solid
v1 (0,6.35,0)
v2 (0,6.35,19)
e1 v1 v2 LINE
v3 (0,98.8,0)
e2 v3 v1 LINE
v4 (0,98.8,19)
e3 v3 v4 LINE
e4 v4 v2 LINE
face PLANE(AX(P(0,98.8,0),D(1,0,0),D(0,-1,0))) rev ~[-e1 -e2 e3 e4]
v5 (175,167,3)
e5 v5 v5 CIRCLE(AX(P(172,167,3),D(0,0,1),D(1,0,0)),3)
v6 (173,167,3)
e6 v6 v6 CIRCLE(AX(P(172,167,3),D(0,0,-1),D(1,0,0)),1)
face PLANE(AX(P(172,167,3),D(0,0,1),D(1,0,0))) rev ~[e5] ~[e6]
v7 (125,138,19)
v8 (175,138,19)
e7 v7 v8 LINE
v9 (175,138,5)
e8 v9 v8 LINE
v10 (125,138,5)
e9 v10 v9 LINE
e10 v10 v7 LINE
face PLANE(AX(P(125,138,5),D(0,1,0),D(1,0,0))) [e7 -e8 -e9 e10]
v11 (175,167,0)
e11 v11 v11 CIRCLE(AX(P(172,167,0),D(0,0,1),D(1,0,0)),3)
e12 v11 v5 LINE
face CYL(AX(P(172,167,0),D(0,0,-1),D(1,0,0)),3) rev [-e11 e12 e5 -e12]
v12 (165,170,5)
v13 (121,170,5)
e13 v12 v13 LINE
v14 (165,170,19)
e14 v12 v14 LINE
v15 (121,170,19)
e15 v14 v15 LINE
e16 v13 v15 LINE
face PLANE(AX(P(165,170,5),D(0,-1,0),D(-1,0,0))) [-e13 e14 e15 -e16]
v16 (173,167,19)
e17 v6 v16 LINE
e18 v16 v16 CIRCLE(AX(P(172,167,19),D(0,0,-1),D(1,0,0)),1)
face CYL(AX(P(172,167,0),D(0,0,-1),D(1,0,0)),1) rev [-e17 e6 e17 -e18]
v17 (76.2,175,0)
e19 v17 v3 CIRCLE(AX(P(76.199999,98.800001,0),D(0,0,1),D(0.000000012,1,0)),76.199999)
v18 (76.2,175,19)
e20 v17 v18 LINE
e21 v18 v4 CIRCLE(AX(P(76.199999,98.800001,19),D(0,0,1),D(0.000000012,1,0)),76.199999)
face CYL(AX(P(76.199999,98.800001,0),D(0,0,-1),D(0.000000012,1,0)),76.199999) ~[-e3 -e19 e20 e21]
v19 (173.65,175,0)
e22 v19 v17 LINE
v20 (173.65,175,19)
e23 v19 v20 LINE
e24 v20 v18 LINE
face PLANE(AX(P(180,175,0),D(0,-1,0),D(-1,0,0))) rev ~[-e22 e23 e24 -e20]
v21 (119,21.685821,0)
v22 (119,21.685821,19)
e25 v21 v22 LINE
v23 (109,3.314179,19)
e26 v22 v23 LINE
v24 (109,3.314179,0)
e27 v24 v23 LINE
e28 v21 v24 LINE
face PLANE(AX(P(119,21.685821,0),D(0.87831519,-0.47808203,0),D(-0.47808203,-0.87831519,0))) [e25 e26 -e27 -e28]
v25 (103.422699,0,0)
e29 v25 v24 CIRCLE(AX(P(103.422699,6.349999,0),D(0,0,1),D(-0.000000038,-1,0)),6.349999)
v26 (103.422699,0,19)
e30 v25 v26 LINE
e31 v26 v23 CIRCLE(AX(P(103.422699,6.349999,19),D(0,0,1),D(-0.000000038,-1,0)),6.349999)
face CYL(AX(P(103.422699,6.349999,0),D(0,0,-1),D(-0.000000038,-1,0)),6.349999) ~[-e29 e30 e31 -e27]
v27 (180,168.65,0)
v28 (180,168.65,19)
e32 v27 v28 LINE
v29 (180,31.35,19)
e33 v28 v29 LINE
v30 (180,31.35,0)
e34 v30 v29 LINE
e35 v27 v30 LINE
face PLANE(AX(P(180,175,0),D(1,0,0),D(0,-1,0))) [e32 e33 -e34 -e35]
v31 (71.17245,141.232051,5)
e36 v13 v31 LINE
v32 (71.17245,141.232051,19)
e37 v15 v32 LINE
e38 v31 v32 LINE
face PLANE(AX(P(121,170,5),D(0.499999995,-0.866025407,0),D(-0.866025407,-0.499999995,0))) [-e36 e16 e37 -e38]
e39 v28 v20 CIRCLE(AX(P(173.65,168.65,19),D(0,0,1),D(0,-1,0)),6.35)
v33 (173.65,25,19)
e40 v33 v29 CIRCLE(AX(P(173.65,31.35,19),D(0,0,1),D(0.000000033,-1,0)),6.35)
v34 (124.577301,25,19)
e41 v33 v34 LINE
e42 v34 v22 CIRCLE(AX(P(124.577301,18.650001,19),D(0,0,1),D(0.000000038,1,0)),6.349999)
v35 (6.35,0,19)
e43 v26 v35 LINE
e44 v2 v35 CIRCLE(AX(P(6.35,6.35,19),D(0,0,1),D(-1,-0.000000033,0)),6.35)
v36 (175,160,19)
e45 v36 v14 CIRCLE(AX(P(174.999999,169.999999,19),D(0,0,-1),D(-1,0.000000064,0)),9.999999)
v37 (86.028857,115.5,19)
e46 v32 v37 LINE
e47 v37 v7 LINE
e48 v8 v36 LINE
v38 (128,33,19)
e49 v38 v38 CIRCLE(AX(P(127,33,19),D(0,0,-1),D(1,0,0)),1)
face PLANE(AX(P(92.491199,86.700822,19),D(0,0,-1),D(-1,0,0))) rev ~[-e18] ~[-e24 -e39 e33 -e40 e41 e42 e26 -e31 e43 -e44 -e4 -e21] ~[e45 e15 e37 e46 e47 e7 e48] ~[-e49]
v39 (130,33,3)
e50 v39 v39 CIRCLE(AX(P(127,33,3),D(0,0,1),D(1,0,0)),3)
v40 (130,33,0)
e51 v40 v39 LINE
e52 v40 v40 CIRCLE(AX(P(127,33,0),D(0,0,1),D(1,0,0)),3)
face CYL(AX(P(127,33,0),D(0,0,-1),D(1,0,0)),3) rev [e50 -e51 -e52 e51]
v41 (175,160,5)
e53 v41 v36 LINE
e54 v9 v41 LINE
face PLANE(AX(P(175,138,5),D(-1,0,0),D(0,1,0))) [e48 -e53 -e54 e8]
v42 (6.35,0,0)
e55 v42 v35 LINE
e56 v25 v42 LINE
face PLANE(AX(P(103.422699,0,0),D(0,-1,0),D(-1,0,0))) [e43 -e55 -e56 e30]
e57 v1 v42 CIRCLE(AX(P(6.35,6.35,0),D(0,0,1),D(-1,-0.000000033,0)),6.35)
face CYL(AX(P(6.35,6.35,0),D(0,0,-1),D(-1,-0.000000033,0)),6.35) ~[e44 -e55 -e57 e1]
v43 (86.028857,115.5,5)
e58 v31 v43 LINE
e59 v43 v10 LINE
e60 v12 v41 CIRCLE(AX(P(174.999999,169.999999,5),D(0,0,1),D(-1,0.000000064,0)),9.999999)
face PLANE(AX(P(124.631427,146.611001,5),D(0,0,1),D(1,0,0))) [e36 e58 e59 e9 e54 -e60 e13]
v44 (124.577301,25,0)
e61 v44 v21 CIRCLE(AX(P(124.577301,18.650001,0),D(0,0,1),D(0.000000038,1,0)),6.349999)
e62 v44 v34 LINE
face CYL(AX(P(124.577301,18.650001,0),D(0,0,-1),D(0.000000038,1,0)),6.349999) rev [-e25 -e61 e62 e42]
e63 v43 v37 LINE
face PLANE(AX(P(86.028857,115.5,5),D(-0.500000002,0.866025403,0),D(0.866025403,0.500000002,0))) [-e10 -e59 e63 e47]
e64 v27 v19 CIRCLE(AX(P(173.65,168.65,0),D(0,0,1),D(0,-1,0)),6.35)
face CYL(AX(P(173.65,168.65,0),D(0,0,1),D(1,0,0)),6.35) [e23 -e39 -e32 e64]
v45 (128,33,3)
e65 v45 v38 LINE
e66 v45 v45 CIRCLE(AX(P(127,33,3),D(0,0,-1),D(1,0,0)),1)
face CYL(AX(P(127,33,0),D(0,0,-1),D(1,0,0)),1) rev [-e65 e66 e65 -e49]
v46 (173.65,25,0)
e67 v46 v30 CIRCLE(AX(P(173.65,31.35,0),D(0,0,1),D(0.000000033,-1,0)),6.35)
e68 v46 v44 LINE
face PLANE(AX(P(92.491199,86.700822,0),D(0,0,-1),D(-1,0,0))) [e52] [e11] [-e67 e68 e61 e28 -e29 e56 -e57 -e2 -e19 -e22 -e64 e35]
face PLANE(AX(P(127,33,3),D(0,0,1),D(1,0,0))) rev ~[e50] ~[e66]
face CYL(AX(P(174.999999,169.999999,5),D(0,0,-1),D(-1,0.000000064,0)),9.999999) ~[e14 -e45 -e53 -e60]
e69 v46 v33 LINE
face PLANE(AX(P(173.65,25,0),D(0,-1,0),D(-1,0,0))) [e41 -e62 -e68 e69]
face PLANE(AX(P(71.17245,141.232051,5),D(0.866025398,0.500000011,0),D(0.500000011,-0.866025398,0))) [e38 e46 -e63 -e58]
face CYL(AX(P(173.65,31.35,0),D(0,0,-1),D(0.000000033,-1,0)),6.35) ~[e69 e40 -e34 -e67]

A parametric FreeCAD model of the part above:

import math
import FreeCAD as App
import Part
import Sketcher
Q = App.Units.Quantity


def edges_at(feature, points):
    """Names of the edges that pass closest to the given points."""
    edges = feature.Shape.Edges
    near = lambda p: min(range(len(edges)), key=lambda i: edges[i].distToShape(Part.Vertex(*p))[0])
    return sorted({f"Edge{near(p) + 1}" for p in points})

doc = App.newDocument("Part")
body = doc.addObject("PartDesign::Body", "Body")

# Sketch on XY plane
sketch1 = body.newObject("Sketcher::SketchObject", "Sketch")
sketch1.AttachmentSupport = (doc.getObject("XY_Plane"), [""])
sketch1.MapMode = "FlatFace"
sketch1.addGeometry([
    Part.LineSegment(App.Vector(180, 31, 0), App.Vector(180, 175, 0)),  # 0
    Part.LineSegment(App.Vector(180, 175, 0), App.Vector(76, 175, 0)),  # 1
    Part.ArcOfCircle(Part.Circle(App.Vector(76, 99, 0), App.Vector(0, 0, 1), 76), math.radians(90), math.radians(180)),  # 2
    Part.LineSegment(App.Vector(0, 99, 0), App.Vector(0, 6, 0)),  # 3
    Part.ArcOfCircle(Part.Circle(App.Vector(6, 6, 0), App.Vector(0, 0, 1), 6), math.radians(-180), math.radians(-90)),  # 4
    Part.LineSegment(App.Vector(6, 0, 0), App.Vector(103, 0, 0)),  # 5
    Part.ArcOfCircle(Part.Circle(App.Vector(103, 6, 0), App.Vector(0, 0, 1), 6), math.radians(-90), math.radians(-29)),  # 6
    Part.LineSegment(App.Vector(109, 3, 0), App.Vector(119, 22, 0)),  # 7
    Part.ArcOfCircle(Part.Circle(App.Vector(125, 19, 0), App.Vector(0, 0, 1), 6), math.radians(90), math.radians(151)),  # 8
    Part.LineSegment(App.Vector(125, 25, 0), App.Vector(174, 25, 0)),  # 9
    Part.ArcOfCircle(Part.Circle(App.Vector(174, 31, 0), App.Vector(0, 0, 1), 6), math.radians(-90), math.radians(0)),  # 10
], False)
sketch1.addConstraint([
    Sketcher.Constraint("Coincident", 0, 2, 1, 1),
    Sketcher.Constraint("Tangent", 1, 2, 2, 1),
    Sketcher.Constraint("Tangent", 2, 2, 3, 1),
    Sketcher.Constraint("Tangent", 3, 2, 4, 1),
    Sketcher.Constraint("Tangent", 4, 2, 5, 1),
    Sketcher.Constraint("Tangent", 5, 2, 6, 1),
    Sketcher.Constraint("Tangent", 6, 2, 7, 1),
    Sketcher.Constraint("Tangent", 7, 2, 8, 2),
    Sketcher.Constraint("Tangent", 8, 1, 9, 1),
    Sketcher.Constraint("Tangent", 9, 2, 10, 1),
    Sketcher.Constraint("Tangent", 10, 2, 0, 1),
    Sketcher.Constraint("Vertical", 0),
    Sketcher.Constraint("Horizontal", 1),
    Sketcher.Constraint("Vertical", 3),
    Sketcher.Constraint("Horizontal", 5),
    Sketcher.Constraint("Horizontal", 9),
    Sketcher.Constraint("Equal", 4, 6),
    Sketcher.Constraint("Equal", 6, 8),
    Sketcher.Constraint("Equal", 8, 10),
    Sketcher.Constraint("PointOnObject", 2, 2, -2),
    Sketcher.Constraint("PointOnObject", 4, 2, -1),
    Sketcher.Constraint("Radius", 2, Q("76.199999 mm")),
    Sketcher.Constraint("Radius", 4, Q("6.35 mm")),
    Sketcher.Constraint("DistanceX", 1, 2, 1, 1, Q("103.8 mm")),
    Sketcher.Constraint("DistanceY", -1, 1, 0, 2, Q("175 mm")),
    Sketcher.Constraint("DistanceX", -1, 1, 6, 2, Q("109 mm")),
    Sketcher.Constraint("DistanceX", -1, 1, 7, 2, Q("119 mm")),
    Sketcher.Constraint("DistanceY", -1, 1, 8, 1, Q("25 mm")),
])
pad1 = body.newObject("PartDesign::Pad", "Pad")
pad1.Profile = sketch1
pad1.Length = 19
doc.recompute()

fillet = body.newObject("PartDesign::Fillet", "Fillet")
fillet.Base = (pad1, edges_at(pad1, [(180, 175, 9.5)]))
fillet.Radius = 6.35

# Sketch on XY plane
sketch2 = body.newObject("Sketcher::SketchObject", "Sketch001")
sketch2.AttachmentSupport = (doc.getObject("XY_Plane"), [""])
sketch2.MapMode = "FlatFace"
sketch2.AttachmentOffset = App.Placement(App.Vector(0, 0, 5), App.Rotation())
sketch2.addGeometry([
    Part.LineSegment(App.Vector(165, 170, 0), App.Vector(121, 170, 0)),  # 0
    Part.LineSegment(App.Vector(121, 170, 0), App.Vector(71, 141, 0)),  # 1
    Part.LineSegment(App.Vector(71, 141, 0), App.Vector(86, 116, 0)),  # 2
    Part.LineSegment(App.Vector(86, 116, 0), App.Vector(125, 138, 0)),  # 3
    Part.LineSegment(App.Vector(125, 138, 0), App.Vector(175, 138, 0)),  # 4
    Part.LineSegment(App.Vector(175, 138, 0), App.Vector(175, 160, 0)),  # 5
    Part.ArcOfCircle(Part.Circle(App.Vector(175, 170, 0), App.Vector(0, 0, 1), 10), math.radians(180), math.radians(270)),  # 6
], False)
sketch2.addConstraint([
    Sketcher.Constraint("Coincident", 0, 2, 1, 1),
    Sketcher.Constraint("Coincident", 1, 2, 2, 1),
    Sketcher.Constraint("Coincident", 2, 2, 3, 1),
    Sketcher.Constraint("Coincident", 3, 2, 4, 1),
    Sketcher.Constraint("Coincident", 4, 2, 5, 1),
    Sketcher.Constraint("Coincident", 5, 2, 6, 2),
    Sketcher.Constraint("Coincident", 6, 1, 0, 1),
    Sketcher.Constraint("Horizontal", 0),
    Sketcher.Constraint("Horizontal", 4),
    Sketcher.Constraint("Vertical", 5),
    Sketcher.Constraint("Perpendicular", 1, 2),
    Sketcher.Constraint("Perpendicular", 2, 3),
    Sketcher.Constraint("Horizontal", 6, 3, 0, 2),
    Sketcher.Constraint("Vertical", 6, 3, 4, 2),
    Sketcher.Constraint("Radius", 6, Q("9.999999 mm")),
    Sketcher.Constraint("DistanceX", 0, 2, 0, 1, Q("44 mm")),
    Sketcher.Constraint("DistanceX", 4, 1, 4, 2, Q("50 mm")),
    Sketcher.Constraint("DistanceY", 5, 1, 5, 2, Q("22 mm")),
    Sketcher.Constraint("Angle", 1, Q("-150 deg")),
    Sketcher.Constraint("Distance", 3, Q("45 mm")),
    Sketcher.Constraint("DistanceX", -1, 1, 6, 3, Q("174.999999 mm")),
    Sketcher.Constraint("DistanceY", -1, 1, 6, 3, Q("169.999999 mm")),
])
pocket1 = body.newObject("PartDesign::Pocket", "Pocket")
pocket1.Profile = sketch2
pocket1.Type = "ThroughAll"
pocket1.Reversed = True

# Sketch on XY plane
sketch3 = body.newObject("Sketcher::SketchObject", "Sketch002")
sketch3.AttachmentSupport = (doc.getObject("XY_Plane"), [""])
sketch3.MapMode = "FlatFace"
sketch3.addGeometry([
    Part.Circle(App.Vector(172, 167, 0), App.Vector(0, 0, 1), 1),
    Part.Circle(App.Vector(127, 33, 0), App.Vector(0, 0, 1), 1),
], False)
sketch3.addConstraint([
    Sketcher.Constraint("Equal", 0, 1),
    Sketcher.Constraint("Diameter", 0, Q("2 mm")),
    Sketcher.Constraint("DistanceX", -1, 1, 0, 3, Q("172 mm")),
    Sketcher.Constraint("DistanceY", -1, 1, 0, 3, Q("167 mm")),
    Sketcher.Constraint("DistanceX", -1, 1, 1, 3, Q("127 mm")),
    Sketcher.Constraint("DistanceY", -1, 1, 1, 3, Q("33 mm")),
])
pocket2 = body.newObject("PartDesign::Pocket", "Pocket001")
pocket2.Profile = sketch3
pocket2.Type = "ThroughAll"
pocket2.Midplane = True

# Sketch on XY plane
sketch4 = body.newObject("Sketcher::SketchObject", "Sketch003")
sketch4.AttachmentSupport = (doc.getObject("XY_Plane"), [""])
sketch4.MapMode = "FlatFace"
sketch4.addGeometry([
    Part.Circle(App.Vector(127, 33, 0), App.Vector(0, 0, 1), 3),
    Part.Circle(App.Vector(172, 167, 0), App.Vector(0, 0, 1), 3),
], False)
sketch4.addConstraint([
    Sketcher.Constraint("Equal", 0, 1),
    Sketcher.Constraint("Diameter", 0, Q("6 mm")),
    Sketcher.Constraint("DistanceX", -1, 1, 0, 3, Q("127 mm")),
    Sketcher.Constraint("DistanceY", -1, 1, 0, 3, Q("33 mm")),
    Sketcher.Constraint("DistanceX", -1, 1, 1, 3, Q("172 mm")),
    Sketcher.Constraint("DistanceY", -1, 1, 1, 3, Q("167 mm")),
])
pocket3 = body.newObject("PartDesign::Pocket", "Pocket002")
pocket3.Profile = sketch4
pocket3.Length = 3
pocket3.Reversed = True

doc.recompute()
